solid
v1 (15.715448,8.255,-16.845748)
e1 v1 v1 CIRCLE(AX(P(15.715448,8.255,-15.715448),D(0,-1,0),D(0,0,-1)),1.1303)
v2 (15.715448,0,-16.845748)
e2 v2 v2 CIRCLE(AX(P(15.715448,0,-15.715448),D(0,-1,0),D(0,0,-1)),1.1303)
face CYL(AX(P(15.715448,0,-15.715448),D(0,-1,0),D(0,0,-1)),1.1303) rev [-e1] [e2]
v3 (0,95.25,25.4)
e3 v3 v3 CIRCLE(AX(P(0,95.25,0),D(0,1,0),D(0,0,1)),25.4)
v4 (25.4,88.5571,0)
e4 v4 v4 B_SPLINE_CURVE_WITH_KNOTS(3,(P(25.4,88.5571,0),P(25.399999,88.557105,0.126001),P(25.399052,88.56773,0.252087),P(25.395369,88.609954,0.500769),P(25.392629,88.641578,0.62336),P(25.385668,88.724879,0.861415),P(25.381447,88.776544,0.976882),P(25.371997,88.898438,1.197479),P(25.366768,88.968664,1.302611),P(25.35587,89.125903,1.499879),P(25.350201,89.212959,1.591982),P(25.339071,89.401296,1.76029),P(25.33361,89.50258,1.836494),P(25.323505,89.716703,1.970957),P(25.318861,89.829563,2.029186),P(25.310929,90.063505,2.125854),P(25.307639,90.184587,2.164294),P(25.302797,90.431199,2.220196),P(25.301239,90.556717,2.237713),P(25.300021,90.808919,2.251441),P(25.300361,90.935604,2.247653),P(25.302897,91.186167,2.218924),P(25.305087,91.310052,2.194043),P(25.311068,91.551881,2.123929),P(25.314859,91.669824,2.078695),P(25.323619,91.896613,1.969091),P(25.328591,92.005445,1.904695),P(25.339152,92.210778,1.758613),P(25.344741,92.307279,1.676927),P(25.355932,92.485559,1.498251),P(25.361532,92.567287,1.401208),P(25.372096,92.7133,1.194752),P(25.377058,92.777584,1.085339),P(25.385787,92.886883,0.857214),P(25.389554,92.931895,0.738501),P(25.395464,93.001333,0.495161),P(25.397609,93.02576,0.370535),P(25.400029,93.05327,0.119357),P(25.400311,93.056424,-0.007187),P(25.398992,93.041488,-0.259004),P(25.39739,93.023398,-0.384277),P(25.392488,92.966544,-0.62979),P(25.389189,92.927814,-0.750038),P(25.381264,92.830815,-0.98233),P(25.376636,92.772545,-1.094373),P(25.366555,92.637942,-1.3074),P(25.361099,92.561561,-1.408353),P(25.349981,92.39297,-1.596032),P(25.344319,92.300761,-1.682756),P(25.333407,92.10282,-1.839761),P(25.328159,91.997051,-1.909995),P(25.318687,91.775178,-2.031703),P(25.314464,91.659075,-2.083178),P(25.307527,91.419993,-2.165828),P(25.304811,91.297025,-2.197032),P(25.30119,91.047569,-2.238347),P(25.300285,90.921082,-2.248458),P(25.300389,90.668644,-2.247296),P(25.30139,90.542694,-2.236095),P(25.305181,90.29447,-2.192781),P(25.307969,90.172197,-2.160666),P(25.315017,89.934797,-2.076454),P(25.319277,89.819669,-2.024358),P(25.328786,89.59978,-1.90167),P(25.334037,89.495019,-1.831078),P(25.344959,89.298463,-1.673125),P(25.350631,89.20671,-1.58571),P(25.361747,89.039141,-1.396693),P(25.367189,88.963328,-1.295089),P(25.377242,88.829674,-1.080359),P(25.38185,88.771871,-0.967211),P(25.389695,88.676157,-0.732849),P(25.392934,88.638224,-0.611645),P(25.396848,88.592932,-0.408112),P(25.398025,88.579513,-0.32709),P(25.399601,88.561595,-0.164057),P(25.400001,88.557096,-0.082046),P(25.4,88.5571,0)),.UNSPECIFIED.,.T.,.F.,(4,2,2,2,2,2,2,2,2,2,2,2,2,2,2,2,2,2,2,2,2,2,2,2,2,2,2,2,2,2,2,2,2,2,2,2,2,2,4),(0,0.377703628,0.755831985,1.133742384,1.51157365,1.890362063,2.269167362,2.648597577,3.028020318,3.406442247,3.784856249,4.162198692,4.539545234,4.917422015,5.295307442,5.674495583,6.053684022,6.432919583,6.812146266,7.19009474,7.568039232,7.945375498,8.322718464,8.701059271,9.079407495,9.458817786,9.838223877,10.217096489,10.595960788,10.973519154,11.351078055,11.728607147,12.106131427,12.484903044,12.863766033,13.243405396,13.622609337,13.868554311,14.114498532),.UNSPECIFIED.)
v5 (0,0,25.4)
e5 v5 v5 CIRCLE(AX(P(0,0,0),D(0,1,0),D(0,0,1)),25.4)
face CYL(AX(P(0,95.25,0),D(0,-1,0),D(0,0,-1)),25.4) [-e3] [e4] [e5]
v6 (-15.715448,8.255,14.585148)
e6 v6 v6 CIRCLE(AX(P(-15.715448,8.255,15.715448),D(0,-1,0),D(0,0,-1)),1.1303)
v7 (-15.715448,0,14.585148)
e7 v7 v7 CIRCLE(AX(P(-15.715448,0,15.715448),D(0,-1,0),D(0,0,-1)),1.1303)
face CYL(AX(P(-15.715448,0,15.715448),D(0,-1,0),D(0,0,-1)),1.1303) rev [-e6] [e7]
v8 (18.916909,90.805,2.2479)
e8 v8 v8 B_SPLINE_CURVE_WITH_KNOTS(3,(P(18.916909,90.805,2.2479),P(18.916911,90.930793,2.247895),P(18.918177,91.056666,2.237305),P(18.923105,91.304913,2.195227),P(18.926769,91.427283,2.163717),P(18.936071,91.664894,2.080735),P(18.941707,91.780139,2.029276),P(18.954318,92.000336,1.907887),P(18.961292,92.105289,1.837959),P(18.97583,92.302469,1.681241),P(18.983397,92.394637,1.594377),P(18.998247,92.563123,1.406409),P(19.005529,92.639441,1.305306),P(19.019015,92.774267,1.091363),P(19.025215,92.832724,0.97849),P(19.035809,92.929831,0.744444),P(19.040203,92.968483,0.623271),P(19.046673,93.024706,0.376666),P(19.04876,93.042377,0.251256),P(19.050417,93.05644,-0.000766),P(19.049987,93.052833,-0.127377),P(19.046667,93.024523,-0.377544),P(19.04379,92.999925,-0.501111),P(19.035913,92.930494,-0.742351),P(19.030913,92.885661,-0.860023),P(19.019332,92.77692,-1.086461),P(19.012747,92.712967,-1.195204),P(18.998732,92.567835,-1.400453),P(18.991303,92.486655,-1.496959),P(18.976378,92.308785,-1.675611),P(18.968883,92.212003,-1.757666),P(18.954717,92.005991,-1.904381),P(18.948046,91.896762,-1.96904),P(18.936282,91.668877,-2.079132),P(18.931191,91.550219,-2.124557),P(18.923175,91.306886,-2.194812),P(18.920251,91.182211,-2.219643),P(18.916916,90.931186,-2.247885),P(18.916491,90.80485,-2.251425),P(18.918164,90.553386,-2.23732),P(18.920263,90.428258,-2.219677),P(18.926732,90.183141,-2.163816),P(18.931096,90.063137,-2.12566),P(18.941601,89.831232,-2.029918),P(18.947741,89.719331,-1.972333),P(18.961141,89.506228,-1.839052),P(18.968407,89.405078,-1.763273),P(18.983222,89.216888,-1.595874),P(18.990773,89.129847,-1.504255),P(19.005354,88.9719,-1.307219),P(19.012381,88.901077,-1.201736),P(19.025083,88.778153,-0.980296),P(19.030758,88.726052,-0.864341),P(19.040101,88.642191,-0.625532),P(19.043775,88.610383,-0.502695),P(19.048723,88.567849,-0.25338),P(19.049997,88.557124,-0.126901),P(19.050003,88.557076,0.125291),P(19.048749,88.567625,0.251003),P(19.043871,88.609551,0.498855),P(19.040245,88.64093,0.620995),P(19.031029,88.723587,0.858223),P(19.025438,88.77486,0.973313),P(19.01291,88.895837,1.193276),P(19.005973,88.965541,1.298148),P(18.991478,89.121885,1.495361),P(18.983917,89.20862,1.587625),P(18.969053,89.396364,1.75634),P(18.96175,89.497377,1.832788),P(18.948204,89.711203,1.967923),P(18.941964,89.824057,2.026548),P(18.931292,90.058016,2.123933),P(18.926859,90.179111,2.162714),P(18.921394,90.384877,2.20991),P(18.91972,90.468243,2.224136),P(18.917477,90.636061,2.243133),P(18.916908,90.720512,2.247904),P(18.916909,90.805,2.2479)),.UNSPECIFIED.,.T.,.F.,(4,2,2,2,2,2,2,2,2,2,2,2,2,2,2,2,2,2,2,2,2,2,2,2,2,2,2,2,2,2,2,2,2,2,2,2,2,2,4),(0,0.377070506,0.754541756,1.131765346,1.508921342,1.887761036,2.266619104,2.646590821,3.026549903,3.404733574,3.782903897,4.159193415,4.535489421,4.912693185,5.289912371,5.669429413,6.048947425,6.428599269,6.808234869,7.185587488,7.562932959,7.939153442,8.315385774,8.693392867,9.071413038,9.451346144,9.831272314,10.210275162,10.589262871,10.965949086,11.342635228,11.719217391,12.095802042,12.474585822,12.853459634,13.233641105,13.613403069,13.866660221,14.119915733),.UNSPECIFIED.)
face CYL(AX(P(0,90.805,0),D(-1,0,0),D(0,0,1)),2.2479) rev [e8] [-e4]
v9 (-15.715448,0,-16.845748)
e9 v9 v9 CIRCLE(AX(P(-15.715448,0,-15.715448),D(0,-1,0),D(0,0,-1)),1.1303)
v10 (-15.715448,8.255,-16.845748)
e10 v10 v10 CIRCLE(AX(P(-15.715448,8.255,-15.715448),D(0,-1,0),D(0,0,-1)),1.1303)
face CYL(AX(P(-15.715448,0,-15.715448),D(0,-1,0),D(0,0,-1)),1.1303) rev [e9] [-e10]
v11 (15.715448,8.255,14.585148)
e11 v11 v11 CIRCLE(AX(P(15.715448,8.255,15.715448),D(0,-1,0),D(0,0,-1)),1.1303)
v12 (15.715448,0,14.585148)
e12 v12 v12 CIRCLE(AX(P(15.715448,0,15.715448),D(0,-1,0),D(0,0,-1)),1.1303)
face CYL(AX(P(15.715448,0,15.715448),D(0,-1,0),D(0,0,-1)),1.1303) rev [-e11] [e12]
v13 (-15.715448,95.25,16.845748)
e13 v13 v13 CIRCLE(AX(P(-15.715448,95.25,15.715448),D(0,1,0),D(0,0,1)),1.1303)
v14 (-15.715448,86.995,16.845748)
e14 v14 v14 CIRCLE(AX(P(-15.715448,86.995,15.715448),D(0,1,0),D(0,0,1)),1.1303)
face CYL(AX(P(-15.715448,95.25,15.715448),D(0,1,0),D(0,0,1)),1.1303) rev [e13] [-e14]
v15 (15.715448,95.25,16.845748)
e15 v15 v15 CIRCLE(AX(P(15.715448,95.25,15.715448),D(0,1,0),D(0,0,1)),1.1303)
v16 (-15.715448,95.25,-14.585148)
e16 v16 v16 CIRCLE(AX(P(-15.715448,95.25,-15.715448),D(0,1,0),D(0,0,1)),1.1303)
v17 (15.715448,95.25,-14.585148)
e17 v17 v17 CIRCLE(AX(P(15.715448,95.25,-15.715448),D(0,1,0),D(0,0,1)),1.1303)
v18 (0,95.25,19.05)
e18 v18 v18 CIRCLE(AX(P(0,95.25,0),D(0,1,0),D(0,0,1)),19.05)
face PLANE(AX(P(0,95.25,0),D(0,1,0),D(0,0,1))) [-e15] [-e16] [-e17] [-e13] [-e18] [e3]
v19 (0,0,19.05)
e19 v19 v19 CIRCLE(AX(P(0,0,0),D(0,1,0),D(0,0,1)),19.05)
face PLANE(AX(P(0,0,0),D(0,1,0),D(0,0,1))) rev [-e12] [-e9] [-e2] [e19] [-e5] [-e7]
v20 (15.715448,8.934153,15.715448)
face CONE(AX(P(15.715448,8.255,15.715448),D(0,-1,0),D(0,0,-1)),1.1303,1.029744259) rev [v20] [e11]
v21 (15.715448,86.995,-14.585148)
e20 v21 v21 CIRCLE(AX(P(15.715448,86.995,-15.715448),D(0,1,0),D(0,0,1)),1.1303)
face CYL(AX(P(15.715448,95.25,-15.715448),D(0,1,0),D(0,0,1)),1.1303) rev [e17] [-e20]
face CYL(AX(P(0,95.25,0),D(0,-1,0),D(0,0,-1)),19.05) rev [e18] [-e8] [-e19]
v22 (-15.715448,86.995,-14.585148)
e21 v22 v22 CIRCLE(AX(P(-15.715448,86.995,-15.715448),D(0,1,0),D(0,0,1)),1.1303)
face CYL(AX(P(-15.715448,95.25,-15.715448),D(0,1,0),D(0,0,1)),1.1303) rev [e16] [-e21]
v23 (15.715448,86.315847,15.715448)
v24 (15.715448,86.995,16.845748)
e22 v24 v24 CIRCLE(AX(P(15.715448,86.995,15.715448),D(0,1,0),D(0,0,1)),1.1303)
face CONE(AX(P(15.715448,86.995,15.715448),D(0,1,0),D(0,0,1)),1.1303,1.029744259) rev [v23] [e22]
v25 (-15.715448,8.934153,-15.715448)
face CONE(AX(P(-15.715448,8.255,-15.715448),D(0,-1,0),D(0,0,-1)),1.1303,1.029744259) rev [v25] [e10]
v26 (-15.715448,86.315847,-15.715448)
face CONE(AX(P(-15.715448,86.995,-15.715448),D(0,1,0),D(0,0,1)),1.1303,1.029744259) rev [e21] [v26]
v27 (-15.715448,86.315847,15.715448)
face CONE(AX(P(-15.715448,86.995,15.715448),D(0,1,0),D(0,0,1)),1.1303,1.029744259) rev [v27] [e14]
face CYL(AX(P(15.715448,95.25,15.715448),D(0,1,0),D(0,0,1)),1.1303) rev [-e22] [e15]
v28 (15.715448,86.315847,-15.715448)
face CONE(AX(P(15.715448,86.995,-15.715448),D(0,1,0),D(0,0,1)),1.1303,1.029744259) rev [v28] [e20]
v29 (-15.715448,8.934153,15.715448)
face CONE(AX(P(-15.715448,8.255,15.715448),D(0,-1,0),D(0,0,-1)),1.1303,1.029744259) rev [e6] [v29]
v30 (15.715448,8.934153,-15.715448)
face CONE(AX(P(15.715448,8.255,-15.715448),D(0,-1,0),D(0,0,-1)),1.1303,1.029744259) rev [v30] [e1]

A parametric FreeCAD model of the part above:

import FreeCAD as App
import Part
import Sketcher
Q = App.Units.Quantity


def add_polygon(sketch, points):
    """Adds a closed chain of lines whose ends are joined by coincident constraints."""
    first, n = sketch.GeometryCount, len(points)
    for a, b in zip(points, points[1:] + points[:1]):
        sketch.addGeometry(Part.LineSegment(App.Vector(*a, 0), App.Vector(*b, 0)), False)
    for i in range(n):
        sketch.addConstraint(Sketcher.Constraint("Coincident", first + i, 2, first + (i + 1) % n, 1))

doc = App.newDocument("Part")
body = doc.addObject("PartDesign::Body", "Body")

# Sketch on XZ plane
sketch1 = body.newObject("Sketcher::SketchObject", "Sketch")
sketch1.AttachmentSupport = (doc.getObject("XZ_Plane"), [""])
sketch1.MapMode = "FlatFace"
sketch1.addGeometry([
    Part.Circle(App.Vector(0, 0, 0), App.Vector(0, 0, 1), 25.4),
    Part.Circle(App.Vector(0, 0, 0), App.Vector(0, 0, 1), 19.05),
], False)
sketch1.addConstraint([
    Sketcher.Constraint("Coincident", 0, 3, -1, 1),
    Sketcher.Constraint("Coincident", 1, 3, -1, 1),
    Sketcher.Constraint("Diameter", 0, Q("2 in")),
    Sketcher.Constraint("Diameter", 1, Q("1.5 in")),
])
pad1 = body.newObject("PartDesign::Pad", "Pad")
pad1.Profile = sketch1
pad1.Length = Q("3.75 in")
pad1.Reversed = True

# Sketch on YZ plane
sketch2 = body.newObject("Sketcher::SketchObject", "Sketch001")
sketch2.AttachmentSupport = (doc.getObject("YZ_Plane"), [""])
sketch2.MapMode = "FlatFace"
sketch2.AttachmentOffset = App.Placement(App.Vector(0, 0, -15.715448), App.Rotation())
add_polygon(sketch2, [(8.934153, -15.715448), (0, -15.715448), (0, -16.845748), (8.255, -16.845748)])  # lines 0-3
sketch2.addGeometry(Part.LineSegment(App.Vector(0, -15.715448, 0), App.Vector(8.934153, -15.715448, 0)), True)  # axis
sketch2.addConstraint([
    Sketcher.Constraint("Horizontal", 0),
    Sketcher.Constraint("Vertical", 1),
    Sketcher.Constraint("Horizontal", 2),
    Sketcher.Constraint("Horizontal", 4),
    Sketcher.Constraint("Coincident", 4, 1, 0, 2),
    Sketcher.Constraint("PointOnObject", 0, 2, -2),
    Sketcher.Constraint("Equal", 0, 4),
    Sketcher.Constraint("Angle", 3, Q("59 deg")),
    Sketcher.Constraint("DistanceX", 2, 1, 2, 2, Q("0.325 in")),
    Sketcher.Constraint("DistanceY", 1, 2, 1, 1, Q("0.0445 in")),
    Sketcher.Constraint("DistanceY", 0, 2, -1, 1, 15.715448),
])
groove = body.newObject("PartDesign::Groove", "Groove")
groove.Profile = sketch2
groove.ReferenceAxis = (sketch2, ["Axis0"])
groove.Angle = 360
doc.recompute()

linearpattern = body.newObject("PartDesign::LinearPattern", "LinearPattern")
linearpattern.Originals = [groove]
linearpattern.Direction = (doc.getObject("Z_Axis"), [""])
linearpattern.Mode = "offset"
linearpattern.Offset = 31.430896
linearpattern.Occurrences = 2
body.Tip = linearpattern
doc.recompute()

datumline = body.newObject("PartDesign::Line", "DatumLine")
datumline.Placement = App.Placement(App.Vector(0, 0, 0), App.Rotation(App.Vector(0, 0, 1), App.Vector(0.707106781, 0, 0.707106781)))
linearpattern2 = body.newObject("PartDesign::LinearPattern", "LinearPattern001")
linearpattern2.Originals = [groove]
linearpattern2.Direction = (datumline, [""])
linearpattern2.Mode = "offset"
linearpattern2.Offset = Q("1.75 in")
linearpattern2.Occurrences = 2
body.Tip = linearpattern2
doc.recompute()

linearpattern3 = body.newObject("PartDesign::LinearPattern", "LinearPattern002")
linearpattern3.Originals = [groove]
linearpattern3.Direction = (doc.getObject("X_Axis"), [""])
linearpattern3.Mode = "offset"
linearpattern3.Offset = 31.430896
linearpattern3.Occurrences = 2
body.Tip = linearpattern3
doc.recompute()

datumline2 = body.newObject("PartDesign::Line", "DatumLine001")
datumline2.Placement = App.Placement(App.Vector(0, 0, 0), App.Rotation(App.Vector(0, 0, 1), App.Vector(0.707106781, 0, 0.707106781)))
linearpattern4 = body.newObject("PartDesign::LinearPattern", "LinearPattern003")
linearpattern4.Originals = [groove]
linearpattern4.Direction = (datumline2, [""])
linearpattern4.Mode = "offset"
linearpattern4.Offset = Q("0.875 in")
linearpattern4.Occurrences = 2
body.Tip = linearpattern4
doc.recompute()

datumplane = body.newObject("PartDesign::Plane", "DatumPlane")
datumplane.AttachmentSupport = (doc.getObject("XZ_Plane"), [""])
datumplane.MapMode = "FlatFace"
datumplane.AttachmentOffset = App.Placement(App.Vector(0, 0, -1.875 * 25.4), App.Rotation())
mirrored = body.newObject("PartDesign::Mirrored", "Mirrored")
mirrored.Originals = [groove]
mirrored.MirrorPlane = (datumplane, [""])
body.Tip = mirrored

# Sketch on YZ plane
sketch3 = body.newObject("Sketcher::SketchObject", "Sketch002")
sketch3.AttachmentSupport = (doc.getObject("YZ_Plane"), [""])
sketch3.MapMode = "FlatFace"
sketch3.AttachmentOffset = App.Placement(App.Vector(0, 0, -15.715448), App.Rotation())
add_polygon(sketch3, [(95.25, 15.715448), (86.315847, 15.715448), (86.995, 14.585148), (95.25, 14.585148)])  # lines 0-3
sketch3.addGeometry(Part.LineSegment(App.Vector(86.315847, 15.715448, 0), App.Vector(95.25, 15.715448, 0)), True)  # axis
sketch3.addConstraint([
    Sketcher.Constraint("Horizontal", 0),
    Sketcher.Constraint("Horizontal", 2),
    Sketcher.Constraint("Vertical", 3),
    Sketcher.Constraint("Horizontal", 4),
    Sketcher.Constraint("Coincident", 4, 1, 0, 2),
    Sketcher.Constraint("Vertical", 2, 2, 4, 2),
    Sketcher.Constraint("Angle", 1, Q("-59 deg")),
    Sketcher.Constraint("DistanceX", 2, 1, 2, 2, Q("0.325 in")),
    Sketcher.Constraint("DistanceX", -1, 1, 2, 2, Q("3.75 in")),
    Sketcher.Constraint("DistanceY", 3, 1, 3, 2, Q("0.0445 in")),
    Sketcher.Constraint("DistanceY", -1, 1, 0, 2, 15.715448),
])
groove2 = body.newObject("PartDesign::Groove", "Groove001")
groove2.Profile = sketch3
groove2.ReferenceAxis = (sketch3, ["Axis0"])
groove2.Angle = 360

# Sketch on YZ plane
sketch4 = body.newObject("Sketcher::SketchObject", "Sketch003")
sketch4.AttachmentSupport = (doc.getObject("YZ_Plane"), [""])
sketch4.MapMode = "FlatFace"
sketch4.AttachmentOffset = App.Placement(App.Vector(0, 0, 15.715448), App.Rotation())
add_polygon(sketch4, [(95.25, 15.715448), (86.315847, 15.715448), (86.995, 14.585148), (95.25, 14.585148)])  # lines 0-3
sketch4.addGeometry(Part.LineSegment(App.Vector(86.315847, 15.715448, 0), App.Vector(95.25, 15.715448, 0)), True)  # axis
sketch4.addConstraint([
    Sketcher.Constraint("Horizontal", 0),
    Sketcher.Constraint("Horizontal", 2),
    Sketcher.Constraint("Vertical", 3),
    Sketcher.Constraint("Horizontal", 4),
    Sketcher.Constraint("Coincident", 4, 1, 0, 2),
    Sketcher.Constraint("Vertical", 2, 2, 4, 2),
    Sketcher.Constraint("Angle", 1, Q("-59 deg")),
    Sketcher.Constraint("DistanceX", 2, 1, 2, 2, Q("0.325 in")),
    Sketcher.Constraint("DistanceX", -1, 1, 2, 2, Q("3.75 in")),
    Sketcher.Constraint("DistanceY", 3, 1, 3, 2, Q("0.0445 in")),
    Sketcher.Constraint("DistanceY", -1, 1, 0, 2, 15.715448),
])
groove3 = body.newObject("PartDesign::Groove", "Groove002")
groove3.Profile = sketch4
groove3.ReferenceAxis = (sketch4, ["Axis0"])
groove3.Angle = 360

# Sketch on YZ plane
sketch5 = body.newObject("Sketcher::SketchObject", "Sketch004")
sketch5.AttachmentSupport = (doc.getObject("YZ_Plane"), [""])
sketch5.MapMode = "FlatFace"
sketch5.AttachmentOffset = App.Placement(App.Vector(0, 0, 15.715448), App.Rotation())
add_polygon(sketch5, [(95.25, -15.715448), (86.315847, -15.715448), (86.995, -16.845748), (95.25, -16.845748)])  # lines 0-3
sketch5.addGeometry(Part.LineSegment(App.Vector(86.315847, -15.715448, 0), App.Vector(95.25, -15.715448, 0)), True)  # axis
sketch5.addConstraint([
    Sketcher.Constraint("Horizontal", 0),
    Sketcher.Constraint("Horizontal", 2),
    Sketcher.Constraint("Vertical", 3),
    Sketcher.Constraint("Horizontal", 4),
    Sketcher.Constraint("Coincident", 4, 1, 0, 2),
    Sketcher.Constraint("Vertical", 2, 2, 4, 2),
    Sketcher.Constraint("Angle", 1, Q("-59 deg")),
    Sketcher.Constraint("DistanceX", 2, 1, 2, 2, Q("0.325 in")),
    Sketcher.Constraint("DistanceX", -1, 1, 2, 2, Q("3.75 in")),
    Sketcher.Constraint("DistanceY", 3, 1, 3, 2, Q("0.0445 in")),
    Sketcher.Constraint("DistanceY", 0, 2, -1, 1, 15.715448),
])
groove4 = body.newObject("PartDesign::Groove", "Groove003")
groove4.Profile = sketch5
groove4.ReferenceAxis = (sketch5, ["Axis0"])
groove4.Angle = 360

# Sketch on YZ plane
sketch6 = body.newObject("Sketcher::SketchObject", "Sketch005")
sketch6.AttachmentSupport = (doc.getObject("YZ_Plane"), [""])
sketch6.MapMode = "FlatFace"
add_polygon(sketch6, [(95.25, 0), (86.315847, 0), (86.995, -1.1303), (95.25, -1.1303)])  # lines 0-3
sketch6.addConstraint([
    Sketcher.Constraint("Horizontal", 0),
    Sketcher.Constraint("Horizontal", 2),
    Sketcher.Constraint("Vertical", 3),
    Sketcher.Constraint("PointOnObject", 0, 2, -1),
    Sketcher.Constraint("Angle", 1, Q("-59 deg")),
    Sketcher.Constraint("DistanceX", 2, 1, 2, 2, Q("0.325 in")),
    Sketcher.Constraint("DistanceX", -1, 1, 2, 2, Q("3.75 in")),
    Sketcher.Constraint("DistanceY", 3, 1, 3, 2, Q("0.0445 in")),
])
groove5 = body.newObject("PartDesign::Groove", "Groove004")
groove5.Profile = sketch6
groove5.ReferenceAxis = (sketch6, ["H_Axis"])
groove5.Angle = 360

# Sketch on XZ plane
sketch7 = body.newObject("Sketcher::SketchObject", "Sketch006")
sketch7.AttachmentSupport = (doc.getObject("XZ_Plane"), [""])
sketch7.MapMode = "FlatFace"
sketch7.AttachmentOffset = App.Placement(App.Vector(0, 0, -3.575 * 25.4), App.Rotation())
add_polygon(sketch7, [(25.4, 0), (0, 0), (0, 2.2479), (25.4, 2.2479)])  # lines 0-3
sketch7.addConstraint([
    Sketcher.Constraint("Horizontal", 0),
    Sketcher.Constraint("Vertical", 1),
    Sketcher.Constraint("Horizontal", 2),
    Sketcher.Constraint("Vertical", 3),
    Sketcher.Constraint("Coincident", 0, 2, -1, 1),
    Sketcher.Constraint("DistanceX", 0, 2, 0, 1, Q("1 in")),
    Sketcher.Constraint("DistanceY", 1, 1, 1, 2, Q("0.0885 in")),
])
groove6 = body.newObject("PartDesign::Groove", "Groove005")
groove6.Profile = sketch7
groove6.ReferenceAxis = (sketch7, ["H_Axis"])
groove6.Angle = 360

doc.recompute()
